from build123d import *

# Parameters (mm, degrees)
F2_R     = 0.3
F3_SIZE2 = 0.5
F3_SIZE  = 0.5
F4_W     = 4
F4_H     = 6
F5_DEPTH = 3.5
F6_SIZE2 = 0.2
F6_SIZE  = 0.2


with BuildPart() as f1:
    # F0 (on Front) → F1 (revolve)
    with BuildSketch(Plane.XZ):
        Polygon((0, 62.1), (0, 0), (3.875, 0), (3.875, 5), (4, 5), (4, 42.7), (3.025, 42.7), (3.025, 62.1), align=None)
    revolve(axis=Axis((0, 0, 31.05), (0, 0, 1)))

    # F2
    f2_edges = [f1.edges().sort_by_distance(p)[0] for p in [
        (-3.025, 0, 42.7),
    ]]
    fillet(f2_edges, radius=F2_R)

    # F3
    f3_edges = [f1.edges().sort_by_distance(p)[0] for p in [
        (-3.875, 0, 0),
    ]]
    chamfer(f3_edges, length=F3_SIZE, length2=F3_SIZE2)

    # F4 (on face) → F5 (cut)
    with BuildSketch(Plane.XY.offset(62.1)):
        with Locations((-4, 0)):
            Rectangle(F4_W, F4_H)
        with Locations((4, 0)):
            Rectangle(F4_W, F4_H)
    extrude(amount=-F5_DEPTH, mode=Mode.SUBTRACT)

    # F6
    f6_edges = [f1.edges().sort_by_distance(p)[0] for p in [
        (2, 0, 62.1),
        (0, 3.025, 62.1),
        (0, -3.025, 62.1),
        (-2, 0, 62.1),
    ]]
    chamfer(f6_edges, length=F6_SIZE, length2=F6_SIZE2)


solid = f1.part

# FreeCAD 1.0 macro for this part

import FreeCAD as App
import Part
import Sketcher
from FreeCAD import Vector


def edges_at(feature, points):
    """Names of the edges that pass closest to the given points."""
    edges = feature.Shape.Edges
    near = lambda p: min(range(len(edges)), key=lambda i: edges[i].distToShape(Part.Vertex(*p))[0])
    return sorted({f"Edge{near(p) + 1}" for p in points})

doc = App.newDocument("Part")
params = doc.addObject("Spreadsheet::Sheet", "Params")
for row, (alias, value) in enumerate([
    ("sketch1_height", "5 mm"),
    ("sketch1_height2", "62.1 mm"),
    ("sketch1_height3", "37.7 mm"),
    ("revolution_angle", "360 deg"),
    ("fillet_radius", "0.3 mm"),
    ("chamfer_size", "0.5 mm"),
    ("chamfer_size2", "0.5 mm"),
    ("sketch2_width", "4 mm"),
    ("sketch2_height", "6 mm"),
    ("pocket1_length", "3.5 mm"),
    ("chamfer2_size", "0.2 mm"),
    ("chamfer2_size2", "0.2 mm"),
], start=1):
    params.set(f"A{row}", alias)
    params.set(f"B{row}", "=" + value)
    params.setAlias(f"B{row}", alias)

body = doc.addObject("PartDesign::Body", "Body")

sketch1 = body.newObject("Sketcher::SketchObject", "Sketch")
sketch1.AttachmentSupport = (doc.getObject("XZ_Plane"), [""])
sketch1.MapMode = "FlatFace"
sketch1.addGeometry(Part.LineSegment(Vector(0, 62.1, 0), Vector(0, 0, 0)), False)
sketch1.addGeometry(Part.LineSegment(Vector(0, 0, 0), Vector(3.875, 0, 0)), False)
sketch1.addGeometry(Part.LineSegment(Vector(3.875, 0, 0), Vector(3.875, 5, 0)), False)
sketch1.addGeometry(Part.LineSegment(Vector(3.875, 5, 0), Vector(4, 5, 0)), False)
sketch1.addGeometry(Part.LineSegment(Vector(4, 5, 0), Vector(4, 42.7, 0)), False)
sketch1.addGeometry(Part.LineSegment(Vector(4, 42.7, 0), Vector(3.025, 42.7, 0)), False)
sketch1.addGeometry(Part.LineSegment(Vector(3.025, 42.7, 0), Vector(3.025, 62.1, 0)), False)
sketch1.addGeometry(Part.LineSegment(Vector(3.025, 62.1, 0), Vector(0, 62.1, 0)), False)
sketch1.addConstraint(Sketcher.Constraint("Coincident", 0, 2, 1, 1))
sketch1.addConstraint(Sketcher.Constraint("Coincident", 1, 2, 2, 1))
sketch1.addConstraint(Sketcher.Constraint("Coincident", 2, 2, 3, 1))
sketch1.addConstraint(Sketcher.Constraint("Coincident", 3, 2, 4, 1))
sketch1.addConstraint(Sketcher.Constraint("Coincident", 4, 2, 5, 1))
sketch1.addConstraint(Sketcher.Constraint("Coincident", 5, 2, 6, 1))
sketch1.addConstraint(Sketcher.Constraint("Coincident", 6, 2, 7, 1))
sketch1.addConstraint(Sketcher.Constraint("Coincident", 7, 2, 0, 1))
sketch1.addConstraint(Sketcher.Constraint("Vertical", 0))
sketch1.addConstraint(Sketcher.Constraint("Horizontal", 1))
sketch1.addConstraint(Sketcher.Constraint("Vertical", 2))
sketch1.addConstraint(Sketcher.Constraint("Horizontal", 3))
sketch1.addConstraint(Sketcher.Constraint("Vertical", 4))
sketch1.addConstraint(Sketcher.Constraint("Horizontal", 5))
sketch1.addConstraint(Sketcher.Constraint("Vertical", 6))
sketch1.addConstraint(Sketcher.Constraint("Horizontal", 7))
sketch1.addConstraint(Sketcher.Constraint("Coincident", 0, 2, -1, 1))
sketch1.addConstraint(Sketcher.Constraint("DistanceY", 2, 1, 2, 2, 5.0))
sketch1.addConstraint(Sketcher.Constraint("DistanceY", 0, 2, 0, 1, 62.1))
sketch1.addConstraint(Sketcher.Constraint("DistanceY", 4, 1, 4, 2, 37.7))
sketch1.addConstraint(Sketcher.Constraint("DistanceX", -1, 1, 3, 2, 4.0))
sketch1.addConstraint(Sketcher.Constraint("DistanceX", 1, 1, 1, 2, 3.875))
sketch1.addConstraint(Sketcher.Constraint("DistanceX", 5, 2, 5, 1, 0.975))
sketch1.setExpression("Constraints[17]", "Params.sketch1_height")
sketch1.setExpression("Constraints[18]", "Params.sketch1_height2")
sketch1.setExpression("Constraints[19]", "Params.sketch1_height3")
revolution = body.newObject("PartDesign::Revolution", "Revolution")
revolution.Profile = sketch1
revolution.ReferenceAxis = (sketch1, ["V_Axis"])
revolution.setExpression("Angle", "Params.revolution_angle")
doc.recompute()

fillet = body.newObject("PartDesign::Fillet", "Fillet")
fillet.Base = (revolution, edges_at(revolution, [(-3.025, 0, 42.7)]))
fillet.setExpression("Radius", "Params.fillet_radius")
doc.recompute()

chamfer = body.newObject("PartDesign::Chamfer", "Chamfer")
chamfer.Base = (fillet, edges_at(fillet, [(-3.875, 0, 0)]))
chamfer.ChamferType = "Two distances"
chamfer.setExpression("Size", "Params.chamfer_size")
chamfer.setExpression("Size2", "Params.chamfer_size2")

sketch2 = body.newObject("Sketcher::SketchObject", "Sketch001")
sketch2.AttachmentSupport = (doc.getObject("XY_Plane"), [""])
sketch2.MapMode = "FlatFace"
sketch2.AttachmentOffset = App.Placement(Vector(0, 0, 62.1), App.Rotation())
sketch2.addGeometry(Part.LineSegment(Vector(-6, 3, 0), Vector(-6, -3, 0)), False)
sketch2.addGeometry(Part.LineSegment(Vector(-6, -3, 0), Vector(-2, -3, 0)), False)
sketch2.addGeometry(Part.LineSegment(Vector(-2, -3, 0), Vector(-2, 3, 0)), False)
sketch2.addGeometry(Part.LineSegment(Vector(-2, 3, 0), Vector(-6, 3, 0)), False)
sketch2.addGeometry(Part.LineSegment(Vector(2, 3, 0), Vector(2, -3, 0)), False)
sketch2.addGeometry(Part.LineSegment(Vector(2, -3, 0), Vector(6, -3, 0)), False)
sketch2.addGeometry(Part.LineSegment(Vector(6, -3, 0), Vector(6, 3, 0)), False)
sketch2.addGeometry(Part.LineSegment(Vector(6, 3, 0), Vector(2, 3, 0)), False)
sketch2.addConstraint(Sketcher.Constraint("Coincident", 0, 2, 1, 1))
sketch2.addConstraint(Sketcher.Constraint("Coincident", 1, 2, 2, 1))
sketch2.addConstraint(Sketcher.Constraint("Coincident", 2, 2, 3, 1))
sketch2.addConstraint(Sketcher.Constraint("Coincident", 3, 2, 0, 1))
sketch2.addConstraint(Sketcher.Constraint("Coincident", 4, 2, 5, 1))
sketch2.addConstraint(Sketcher.Constraint("Coincident", 5, 2, 6, 1))
sketch2.addConstraint(Sketcher.Constraint("Coincident", 6, 2, 7, 1))
sketch2.addConstraint(Sketcher.Constraint("Coincident", 7, 2, 4, 1))
sketch2.addConstraint(Sketcher.Constraint("Vertical", 0))
sketch2.addConstraint(Sketcher.Constraint("Horizontal", 1))
sketch2.addConstraint(Sketcher.Constraint("Vertical", 2))
sketch2.addConstraint(Sketcher.Constraint("Horizontal", 3))
sketch2.addConstraint(Sketcher.Constraint("Vertical", 4))
sketch2.addConstraint(Sketcher.Constraint("Horizontal", 5))
sketch2.addConstraint(Sketcher.Constraint("Vertical", 6))
sketch2.addConstraint(Sketcher.Constraint("Horizontal", 7))
sketch2.addConstraint(Sketcher.Constraint("Symmetric", 2, 2, 4, 2, -1, 1))
sketch2.addConstraint(Sketcher.Constraint("Symmetric", 0, 2, 6, 2, -1, 1))
sketch2.addConstraint(Sketcher.Constraint("Horizontal", 1, 2, 4, 2))
sketch2.addConstraint(Sketcher.Constraint("DistanceX", 1, 1, 1, 2, 4.0))
sketch2.addConstraint(Sketcher.Constraint("DistanceY", 0, 2, 0, 1, 6.0))
sketch2.addConstraint(Sketcher.Constraint("DistanceX", 0, 2, -1, 1, 6.0))
sketch2.setExpression("Constraints[19]", "Params.sketch2_width")
sketch2.setExpression("Constraints[20]", "Params.sketch2_height")
pocket1 = body.newObject("PartDesign::Pocket", "Pocket")
pocket1.Profile = sketch2
pocket1.setExpression("Length", "Params.pocket1_length")
doc.recompute()

chamfer2 = body.newObject("PartDesign::Chamfer", "Chamfer001")
chamfer2.Base = (pocket1, edges_at(pocket1, [
    (2, 0, 62.1),
    (0, 3.025, 62.1),
    (0, -3.025, 62.1),
    (-2, 0, 62.1),
]))
chamfer2.ChamferType = "Two distances"
chamfer2.setExpression("Size", "Params.chamfer2_size")
chamfer2.setExpression("Size2", "Params.chamfer2_size2")

doc.recompute()
